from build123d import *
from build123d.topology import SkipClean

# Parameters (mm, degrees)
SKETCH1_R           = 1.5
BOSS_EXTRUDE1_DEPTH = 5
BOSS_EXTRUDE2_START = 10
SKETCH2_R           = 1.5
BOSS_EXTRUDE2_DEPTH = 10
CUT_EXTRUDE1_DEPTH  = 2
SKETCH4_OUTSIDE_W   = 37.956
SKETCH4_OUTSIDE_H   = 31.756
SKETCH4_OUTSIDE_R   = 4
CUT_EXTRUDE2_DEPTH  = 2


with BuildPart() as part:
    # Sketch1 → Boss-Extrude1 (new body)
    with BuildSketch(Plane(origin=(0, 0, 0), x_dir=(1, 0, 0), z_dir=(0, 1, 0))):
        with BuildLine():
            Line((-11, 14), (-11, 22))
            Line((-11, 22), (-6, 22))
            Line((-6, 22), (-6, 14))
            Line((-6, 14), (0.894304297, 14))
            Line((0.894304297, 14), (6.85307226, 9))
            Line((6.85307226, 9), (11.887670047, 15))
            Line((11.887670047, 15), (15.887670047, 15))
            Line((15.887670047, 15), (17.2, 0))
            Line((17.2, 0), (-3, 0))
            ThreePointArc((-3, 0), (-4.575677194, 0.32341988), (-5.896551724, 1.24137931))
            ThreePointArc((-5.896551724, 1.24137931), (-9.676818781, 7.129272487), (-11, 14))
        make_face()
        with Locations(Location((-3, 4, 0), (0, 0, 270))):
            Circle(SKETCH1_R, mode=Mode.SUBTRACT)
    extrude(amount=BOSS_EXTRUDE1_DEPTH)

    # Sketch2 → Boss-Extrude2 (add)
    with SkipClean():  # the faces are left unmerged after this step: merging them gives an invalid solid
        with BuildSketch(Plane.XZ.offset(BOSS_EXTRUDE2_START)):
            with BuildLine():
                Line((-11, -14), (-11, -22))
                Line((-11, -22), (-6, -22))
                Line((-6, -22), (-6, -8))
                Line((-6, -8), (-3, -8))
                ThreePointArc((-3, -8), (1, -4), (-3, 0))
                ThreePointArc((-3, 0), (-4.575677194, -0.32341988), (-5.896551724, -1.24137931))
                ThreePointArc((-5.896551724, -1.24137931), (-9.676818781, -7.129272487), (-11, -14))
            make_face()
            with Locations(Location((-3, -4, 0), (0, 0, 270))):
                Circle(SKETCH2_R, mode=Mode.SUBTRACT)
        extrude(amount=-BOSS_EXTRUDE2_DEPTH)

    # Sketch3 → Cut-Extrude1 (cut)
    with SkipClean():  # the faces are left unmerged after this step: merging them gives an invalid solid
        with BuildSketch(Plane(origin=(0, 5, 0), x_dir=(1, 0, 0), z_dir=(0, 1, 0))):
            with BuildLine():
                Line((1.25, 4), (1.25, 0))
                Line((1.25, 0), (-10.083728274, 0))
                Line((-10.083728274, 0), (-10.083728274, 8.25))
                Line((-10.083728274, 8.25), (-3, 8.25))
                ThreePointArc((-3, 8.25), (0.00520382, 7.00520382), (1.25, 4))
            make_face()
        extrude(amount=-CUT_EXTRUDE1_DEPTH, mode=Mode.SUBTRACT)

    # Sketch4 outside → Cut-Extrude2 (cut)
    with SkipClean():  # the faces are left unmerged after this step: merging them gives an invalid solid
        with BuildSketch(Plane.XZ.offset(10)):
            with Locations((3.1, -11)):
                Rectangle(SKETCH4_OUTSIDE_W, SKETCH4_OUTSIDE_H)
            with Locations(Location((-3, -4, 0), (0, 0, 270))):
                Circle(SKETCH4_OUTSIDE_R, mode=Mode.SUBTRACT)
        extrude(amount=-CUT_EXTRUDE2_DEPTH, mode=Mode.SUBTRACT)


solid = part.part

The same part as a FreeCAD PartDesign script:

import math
import FreeCAD as App
import Part
import Sketcher
from FreeCAD import Vector
Q = App.Units.Quantity


def add_polygon(sketch, points):
    """Adds a closed chain of lines whose ends are joined by coincident constraints."""
    first, n = sketch.GeometryCount, len(points)
    for a, b in zip(points, points[1:] + points[:1]):
        sketch.addGeometry(Part.LineSegment(App.Vector(*a, 0), App.Vector(*b, 0)), False)
    for i in range(n):
        sketch.addConstraint(Sketcher.Constraint("Coincident", first + i, 2, first + (i + 1) % n, 1))

doc = App.newDocument("Part")
body = doc.addObject("PartDesign::Body", "Body")

# Sketch on XZ plane
sketch1 = body.newObject("Sketcher::SketchObject", "Sketch")
sketch1.AttachmentSupport = (doc.getObject("XZ_Plane"), [""])
sketch1.MapMode = "FlatFace"
sketch1.addGeometry([
    Part.LineSegment(Vector(-11, -22, 0), Vector(-11, -14, 0)),  # 0
    Part.ArcOfCircle(Part.Circle(Vector(7.5, -14, 0), Vector(0, 0, 1), 18.5), math.radians(136), math.radians(180)),  # 1
    Part.ArcOfCircle(Part.Circle(Vector(-3, -4, 0), Vector(0, 0, 1), 4), math.radians(90), math.radians(136)),  # 2
    Part.LineSegment(Vector(-3, 0, 0), Vector(17.2, 0, 0)),  # 3
    Part.LineSegment(Vector(17.2, 0, 0), Vector(15.9, -15, 0)),  # 4
    Part.LineSegment(Vector(15.9, -15, 0), Vector(11.9, -15, 0)),  # 5
    Part.LineSegment(Vector(11.9, -15, 0), Vector(6.9, -9, 0)),  # 6
    Part.LineSegment(Vector(6.9, -9, 0), Vector(0.9, -14, 0)),  # 7
    Part.LineSegment(Vector(0.9, -14, 0), Vector(-6, -14, 0)),  # 8
    Part.LineSegment(Vector(-6, -14, 0), Vector(-6, -22, 0)),  # 9
    Part.LineSegment(Vector(-6, -22, 0), Vector(-11, -22, 0)),  # 10
    Part.Circle(Vector(-3, -4, 0), Vector(0, 0, 1), 1.5),  # 11
], False)
sketch1.addConstraint([
    Sketcher.Constraint("Tangent", 0, 2, 1, 2),
    Sketcher.Constraint("Tangent", 1, 1, 2, 2),
    Sketcher.Constraint("Tangent", 2, 1, 3, 1),
    Sketcher.Constraint("Coincident", 3, 2, 4, 1),
    Sketcher.Constraint("Coincident", 4, 2, 5, 1),
    Sketcher.Constraint("Coincident", 5, 2, 6, 1),
    Sketcher.Constraint("Coincident", 6, 2, 7, 1),
    Sketcher.Constraint("Coincident", 7, 2, 8, 1),
    Sketcher.Constraint("Coincident", 8, 2, 9, 1),
    Sketcher.Constraint("Coincident", 9, 2, 10, 1),
    Sketcher.Constraint("Coincident", 10, 2, 0, 1),
    Sketcher.Constraint("Vertical", 0),
    Sketcher.Constraint("Horizontal", 3),
    Sketcher.Constraint("Horizontal", 5),
    Sketcher.Constraint("Horizontal", 8),
    Sketcher.Constraint("Vertical", 9),
    Sketcher.Constraint("Horizontal", 10),
    Sketcher.Constraint("Coincident", 11, 3, 2, 3),
    Sketcher.Constraint("PointOnObject", 2, 1, -1),
    Sketcher.Constraint("Perpendicular", 6, 7),
    Sketcher.Constraint("Horizontal", 0, 2, 7, 2),
    Sketcher.Constraint("Diameter", 11, Q("3 mm")),
    Sketcher.Constraint("Radius", 2, Q("4 mm")),
    Sketcher.Constraint("Radius", 1, Q("18.5 mm")),
    Sketcher.Constraint("DistanceX", 5, 2, 5, 1, Q("4 mm")),
    Sketcher.Constraint("DistanceX", 10, 2, 10, 1, Q("5 mm")),
    Sketcher.Constraint("DistanceY", 0, 1, 0, 2, Q("8 mm")),
    Sketcher.Constraint("Angle", 4, Q("-95 deg")),
    Sketcher.Constraint("Angle", 6, Q("130 deg")),
    Sketcher.Constraint("DistanceX", 3, 1, 3, 2, Q("20.2 mm")),
    Sketcher.Constraint("DistanceY", 1, 3, -1, 1, Q("14 mm")),
    Sketcher.Constraint("DistanceX", 2, 3, -1, 1, Q("3 mm")),
    Sketcher.Constraint("DistanceY", 4, 2, -1, 1, Q("15 mm")),
    Sketcher.Constraint("DistanceY", 6, 2, -1, 1, Q("9 mm")),
])
pad1 = body.newObject("PartDesign::Pad", "Pad")
pad1.Profile = sketch1
pad1.Length = 5
pad1.Reversed = True

# Sketch on XZ plane
sketch2 = body.newObject("Sketcher::SketchObject", "Sketch001")
sketch2.AttachmentSupport = (doc.getObject("XZ_Plane"), [""])
sketch2.MapMode = "FlatFace"
sketch2.AttachmentOffset = App.Placement(Vector(0, 0, 10), App.Rotation())
sketch2.addGeometry([
    Part.LineSegment(Vector(-11, -14, 0), Vector(-11, -22, 0)),  # 0
    Part.LineSegment(Vector(-11, -22, 0), Vector(-6, -22, 0)),  # 1
    Part.LineSegment(Vector(-6, -22, 0), Vector(-6, -8, 0)),  # 2
    Part.LineSegment(Vector(-6, -8, 0), Vector(-3, -8, 0)),  # 3
    Part.ArcOfCircle(Part.Circle(Vector(-3, -4, 0), Vector(0, 0, 1), 4), math.radians(-90), math.radians(90)),  # 4
    Part.ArcOfCircle(Part.Circle(Vector(-3, -4, 0), Vector(0, 0, 1), 4), math.radians(90), math.radians(136)),  # 5
    Part.ArcOfCircle(Part.Circle(Vector(7.5, -14, 0), Vector(0, 0, 1), 18.5), math.radians(136), math.radians(180)),  # 6
    Part.Circle(Vector(-3, -4, 0), Vector(0, 0, 1), 1.5),  # 7
], False)
sketch2.addConstraint([
    Sketcher.Constraint("Coincident", 0, 2, 1, 1),
    Sketcher.Constraint("Coincident", 1, 2, 2, 1),
    Sketcher.Constraint("Coincident", 2, 2, 3, 1),
    Sketcher.Constraint("Tangent", 3, 2, 4, 1),
    Sketcher.Constraint("Tangent", 4, 2, 5, 1),
    Sketcher.Constraint("Tangent", 5, 2, 6, 1),
    Sketcher.Constraint("Tangent", 6, 2, 0, 1),
    Sketcher.Constraint("Vertical", 0),
    Sketcher.Constraint("Horizontal", 1),
    Sketcher.Constraint("Vertical", 2),
    Sketcher.Constraint("Horizontal", 3),
    Sketcher.Constraint("Coincident", 7, 3, 4, 3),
    Sketcher.Constraint("Equal", 4, 5),
    Sketcher.Constraint("PointOnObject", 4, 2, -1),
    Sketcher.Constraint("Vertical", 3, 2, 4, 2),
    Sketcher.Constraint("Diameter", 7, Q("3 mm")),
    Sketcher.Constraint("Radius", 4, Q("4 mm")),
    Sketcher.Constraint("Radius", 6, Q("18.5 mm")),
    Sketcher.Constraint("DistanceX", 1, 1, 1, 2, Q("5 mm")),
    Sketcher.Constraint("DistanceX", 3, 1, 3, 2, Q("3 mm")),
    Sketcher.Constraint("DistanceY", 0, 2, 0, 1, Q("8 mm")),
    Sketcher.Constraint("DistanceX", 4, 3, -1, 1, Q("3 mm")),
])
pad2 = body.newObject("PartDesign::Pad", "Pad001")
pad2.Profile = sketch2
pad2.Length = 10
pad2.Reversed = True

# Sketch on XZ plane
sketch3 = body.newObject("Sketcher::SketchObject", "Sketch002")
sketch3.AttachmentSupport = (doc.getObject("XZ_Plane"), [""])
sketch3.MapMode = "FlatFace"
sketch3.AttachmentOffset = App.Placement(Vector(0, 0, -5), App.Rotation())
sketch3.addGeometry([
    Part.LineSegment(Vector(1.2, 0, 0), Vector(1.2, -4, 0)),  # 0
    Part.ArcOfCircle(Part.Circle(Vector(-3, -4, 0), Vector(0, 0, 1), 4.2), math.radians(-90), math.radians(0)),  # 1
    Part.LineSegment(Vector(-3, -8.2, 0), Vector(-10.1, -8.2, 0)),  # 2
    Part.LineSegment(Vector(-10.1, -8.2, 0), Vector(-10.1, 0, 0)),  # 3
    Part.LineSegment(Vector(-10.1, 0, 0), Vector(1.2, 0, 0)),  # 4
], False)
sketch3.addConstraint([
    Sketcher.Constraint("Tangent", 0, 2, 1, 2),
    Sketcher.Constraint("Tangent", 1, 1, 2, 1),
    Sketcher.Constraint("Coincident", 2, 2, 3, 1),
    Sketcher.Constraint("Coincident", 3, 2, 4, 1),
    Sketcher.Constraint("Coincident", 4, 2, 0, 1),
    Sketcher.Constraint("Vertical", 0),
    Sketcher.Constraint("Horizontal", 2),
    Sketcher.Constraint("Vertical", 3),
    Sketcher.Constraint("Horizontal", 4),
    Sketcher.Constraint("PointOnObject", 3, 2, -1),
    Sketcher.Constraint("DistanceY", 0, 2, 0, 1, Q("4 mm")),
    Sketcher.Constraint("Radius", 1, Q("4.25 mm")),
    Sketcher.Constraint("DistanceX", 1, 3, -1, 1, Q("3 mm")),
    Sketcher.Constraint("DistanceX", 2, 2, 2, 1, Q("7.083728 mm")),
])
pocket1 = body.newObject("PartDesign::Pocket", "Pocket")
pocket1.Profile = sketch3
pocket1.Length = 2
pocket1.Reversed = True

# Sketch on XZ plane
sketch4 = body.newObject("Sketcher::SketchObject", "Sketch003")
sketch4.AttachmentSupport = (doc.getObject("XZ_Plane"), [""])
sketch4.MapMode = "FlatFace"
sketch4.AttachmentOffset = App.Placement(Vector(0, 0, 10), App.Rotation())
add_polygon(sketch4, [(-15.9, 4.9), (-15.9, -26.9), (22.1, -26.9), (22.1, 4.9)])  # lines 0-3
sketch4.addGeometry(Part.Circle(Vector(-3, -4, 0), Vector(0, 0, 1), 4), False)  # 4
sketch4.addConstraint([
    Sketcher.Constraint("Vertical", 0),
    Sketcher.Constraint("Horizontal", 1),
    Sketcher.Constraint("Vertical", 2),
    Sketcher.Constraint("Horizontal", 3),
    Sketcher.Constraint("Diameter", 4, Q("8 mm")),
    Sketcher.Constraint("DistanceX", 4, 3, -1, 1, Q("3 mm")),
    Sketcher.Constraint("DistanceY", 4, 3, -1, 1, Q("4 mm")),
    Sketcher.Constraint("DistanceX", 1, 1, 1, 2, Q("37.956 mm")),
    Sketcher.Constraint("DistanceY", 0, 2, 0, 1, Q("31.756 mm")),
    Sketcher.Constraint("DistanceX", 0, 2, -1, 1, Q("15.878 mm")),
    Sketcher.Constraint("DistanceY", 0, 2, -1, 1, Q("26.878 mm")),
])
pocket2 = body.newObject("PartDesign::Pocket", "Pocket001")
pocket2.Profile = sketch4
pocket2.Length = 2

doc.recompute()
